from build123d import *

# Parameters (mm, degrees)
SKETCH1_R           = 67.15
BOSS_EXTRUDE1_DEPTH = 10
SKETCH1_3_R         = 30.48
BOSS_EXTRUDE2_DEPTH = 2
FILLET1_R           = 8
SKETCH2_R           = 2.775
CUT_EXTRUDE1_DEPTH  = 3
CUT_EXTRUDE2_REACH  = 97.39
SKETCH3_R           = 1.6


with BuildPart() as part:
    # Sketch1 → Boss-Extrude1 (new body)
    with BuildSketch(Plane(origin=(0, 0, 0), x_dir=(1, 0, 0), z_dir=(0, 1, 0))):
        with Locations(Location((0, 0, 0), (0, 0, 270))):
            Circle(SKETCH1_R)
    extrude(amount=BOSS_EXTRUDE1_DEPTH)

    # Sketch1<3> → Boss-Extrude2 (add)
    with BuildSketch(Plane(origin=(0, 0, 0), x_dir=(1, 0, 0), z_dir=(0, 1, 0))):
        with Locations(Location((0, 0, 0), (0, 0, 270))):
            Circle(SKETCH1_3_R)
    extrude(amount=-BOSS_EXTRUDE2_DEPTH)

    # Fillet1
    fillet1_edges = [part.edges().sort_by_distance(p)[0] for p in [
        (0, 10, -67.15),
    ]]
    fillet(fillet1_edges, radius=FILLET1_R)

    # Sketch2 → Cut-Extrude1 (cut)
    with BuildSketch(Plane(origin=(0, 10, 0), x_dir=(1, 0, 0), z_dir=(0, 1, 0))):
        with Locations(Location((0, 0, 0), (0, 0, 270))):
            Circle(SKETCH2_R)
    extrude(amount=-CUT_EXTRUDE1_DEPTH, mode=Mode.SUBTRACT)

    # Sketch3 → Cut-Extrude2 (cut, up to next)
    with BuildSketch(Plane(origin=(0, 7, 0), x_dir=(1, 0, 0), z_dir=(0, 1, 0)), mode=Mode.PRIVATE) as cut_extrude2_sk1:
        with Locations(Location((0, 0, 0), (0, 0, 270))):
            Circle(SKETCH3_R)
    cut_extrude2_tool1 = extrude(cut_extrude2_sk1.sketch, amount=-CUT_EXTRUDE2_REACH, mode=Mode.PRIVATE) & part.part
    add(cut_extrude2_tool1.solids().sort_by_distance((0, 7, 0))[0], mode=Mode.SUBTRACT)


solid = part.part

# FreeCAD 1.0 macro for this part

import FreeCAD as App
import Part
import Sketcher

V = App.Vector
Q = App.Units.Quantity


def edges_at(feature, points):
    """Names of the edges that pass closest to the given points."""
    edges = feature.Shape.Edges
    near = lambda p: min(range(len(edges)), key=lambda i: edges[i].distToShape(Part.Vertex(*p))[0])
    return sorted({f"Edge{near(p) + 1}" for p in points})

doc = App.newDocument("Part")
body = doc.addObject("PartDesign::Body", "Body")

# Sketch on XZ plane
sketch1 = doc.addObject("Sketcher::SketchObject", "Sketch")
body.addObject(sketch1)
sketch1.AttachmentSupport = (doc.XZ_Plane, [""])
sketch1.MapMode = "FlatFace"
sketch1.addGeometry(Part.Circle(V(0, 0, 0), V(0, 0, 1), 67.15), False)
sketch1.addConstraint(Sketcher.Constraint("Coincident", 0, 3, -1, 1))
sketch1.addConstraint(Sketcher.Constraint("Diameter", 0, Q("134.3 mm")))
pad1 = doc.addObject("PartDesign::Pad", "Pad")
body.addObject(pad1)
pad1.Profile = sketch1
pad1.Length = 10
pad1.Reversed = True

# Sketch on XZ plane
sketch2 = doc.addObject("Sketcher::SketchObject", "Sketch001")
body.addObject(sketch2)
sketch2.AttachmentSupport = (doc.XZ_Plane, [""])
sketch2.MapMode = "FlatFace"
sketch2.addGeometry(Part.Circle(V(0, 0, 0), V(0, 0, 1), 30.48), False)
sketch2.addConstraint(Sketcher.Constraint("Coincident", 0, 3, -1, 1))
sketch2.addConstraint(Sketcher.Constraint("Diameter", 0, Q("60.96 mm")))
pad2 = doc.addObject("PartDesign::Pad", "Pad001")
body.addObject(pad2)
pad2.Profile = sketch2
pad2.Length = 2
doc.recompute()

fillet = doc.addObject("PartDesign::Fillet", "Fillet")
body.addObject(fillet)
fillet.Base = (pad2, edges_at(pad2, [(0, 10, -67.15)]))
fillet.Radius = 8

# Sketch on XZ plane
sketch3 = doc.addObject("Sketcher::SketchObject", "Sketch002")
body.addObject(sketch3)
sketch3.AttachmentSupport = (doc.XZ_Plane, [""])
sketch3.MapMode = "FlatFace"
sketch3.AttachmentOffset = App.Placement(V(0, 0, -10), App.Rotation())
sketch3.addGeometry(Part.Circle(V(0, 0, 0), V(0, 0, 1), 2.775), False)
sketch3.addConstraint(Sketcher.Constraint("Coincident", 0, 3, -1, 1))
sketch3.addConstraint(Sketcher.Constraint("Diameter", 0, Q("5.55 mm")))
pocket1 = doc.addObject("PartDesign::Pocket", "Pocket")
body.addObject(pocket1)
pocket1.Profile = sketch3
pocket1.Length = 3
pocket1.Reversed = True

# Sketch on XZ plane
sketch4 = doc.addObject("Sketcher::SketchObject", "Sketch003")
body.addObject(sketch4)
sketch4.AttachmentSupport = (doc.XZ_Plane, [""])
sketch4.MapMode = "FlatFace"
sketch4.AttachmentOffset = App.Placement(V(0, 0, -7), App.Rotation())
sketch4.addGeometry(Part.Circle(V(0, 0, 0), V(0, 0, 1), 1.6), False)
sketch4.addConstraint(Sketcher.Constraint("Coincident", 0, 3, -1, 1))
sketch4.addConstraint(Sketcher.Constraint("Diameter", 0, Q("3.2 mm")))
pocket2 = doc.addObject("PartDesign::Pocket", "Pocket001")
body.addObject(pocket2)
pocket2.Profile = sketch4
pocket2.Type = "UpToFirst"
pocket2.Reversed = True

doc.recompute()
